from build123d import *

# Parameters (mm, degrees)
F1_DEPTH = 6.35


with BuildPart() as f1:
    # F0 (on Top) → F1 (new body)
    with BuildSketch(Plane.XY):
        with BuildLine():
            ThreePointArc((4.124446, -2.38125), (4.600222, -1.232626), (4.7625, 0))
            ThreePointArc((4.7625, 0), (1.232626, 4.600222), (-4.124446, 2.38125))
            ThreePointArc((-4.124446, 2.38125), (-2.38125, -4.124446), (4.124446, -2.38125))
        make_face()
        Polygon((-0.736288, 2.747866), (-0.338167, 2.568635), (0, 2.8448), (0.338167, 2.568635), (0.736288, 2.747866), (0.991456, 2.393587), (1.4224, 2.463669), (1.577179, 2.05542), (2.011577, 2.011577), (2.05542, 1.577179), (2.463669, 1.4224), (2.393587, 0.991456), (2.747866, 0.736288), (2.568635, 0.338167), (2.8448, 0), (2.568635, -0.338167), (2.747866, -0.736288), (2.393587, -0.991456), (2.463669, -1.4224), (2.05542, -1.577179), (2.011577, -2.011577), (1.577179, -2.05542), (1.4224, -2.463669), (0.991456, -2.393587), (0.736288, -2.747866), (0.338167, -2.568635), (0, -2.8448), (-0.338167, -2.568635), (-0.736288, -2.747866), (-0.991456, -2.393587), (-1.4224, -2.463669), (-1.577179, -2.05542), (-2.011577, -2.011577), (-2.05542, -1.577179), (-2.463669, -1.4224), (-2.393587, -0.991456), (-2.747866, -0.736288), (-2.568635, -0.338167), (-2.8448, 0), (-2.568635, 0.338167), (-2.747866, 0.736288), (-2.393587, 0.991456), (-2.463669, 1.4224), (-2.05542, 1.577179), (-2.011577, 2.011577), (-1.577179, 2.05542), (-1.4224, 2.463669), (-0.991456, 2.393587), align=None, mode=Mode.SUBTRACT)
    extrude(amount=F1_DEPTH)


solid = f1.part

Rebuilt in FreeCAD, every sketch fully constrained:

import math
import FreeCAD as App
import Part
import Sketcher

V = App.Vector
Q = App.Units.Quantity


def add_polygon(sketch, points):
    """Adds a closed chain of lines whose ends are joined by coincident constraints."""
    first, n = sketch.GeometryCount, len(points)
    for a, b in zip(points, points[1:] + points[:1]):
        sketch.addGeometry(Part.LineSegment(App.Vector(*a, 0), App.Vector(*b, 0)), False)
    for i in range(n):
        sketch.addConstraint(Sketcher.Constraint("Coincident", first + i, 2, first + (i + 1) % n, 1))

doc = App.newDocument("Part")
params = doc.addObject("Spreadsheet::Sheet", "Params")
for row, (alias, value) in enumerate([
    ("sketch1_radius", "0.1875 in"),
    ("pad1_length", "0.25 in"),
], start=1):
    params.set(f"A{row}", alias)
    params.set(f"B{row}", "=" + value)
    params.setAlias(f"B{row}", alias)

body = doc.addObject("PartDesign::Body", "Body")

sketch1 = body.newObject("Sketcher::SketchObject", "Sketch")
sketch1.AttachmentSupport = (doc.getObject("XY_Plane"), [""])
sketch1.MapMode = "FlatFace"
sketch1.addGeometry(Part.ArcOfCircle(Part.Circle(V(0.000009, -0.000002, 0), V(0, 0, 1), 4.762491), math.radians(-30.000028), math.radians(0.000029)), False)
sketch1.addGeometry(Part.ArcOfCircle(Part.Circle(V(0, 0, 0), V(0, 0, 1), 4.7625), math.radians(-0.000005), math.radians(150.000005)), False)
sketch1.addGeometry(Part.ArcOfCircle(Part.Circle(V(0, 0, 0), V(0, 0, 1), 4.7625), math.radians(150), math.radians(330)), False)
add_polygon(sketch1, [(-0.991456, 2.393587), (-0.736288, 2.747866), (-0.338167, 2.568635), (0, 2.8448), (0.338167, 2.568635), (0.736288, 2.747866), (0.991456, 2.393587), (1.4224, 2.463669), (1.577179, 2.05542), (2.011577, 2.011577), (2.05542, 1.577179), (2.463669, 1.4224), (2.393587, 0.991456), (2.747866, 0.736288), (2.568635, 0.338167), (2.8448, 0), (2.568635, -0.338167), (2.747866, -0.736288), (2.393587, -0.991456), (2.463669, -1.4224), (2.05542, -1.577179), (2.011577, -2.011577), (1.577179, -2.05542), (1.4224, -2.463669), (0.991456, -2.393587), (0.736288, -2.747866), (0.338167, -2.568635), (0, -2.8448), (-0.338167, -2.568635), (-0.736288, -2.747866), (-0.991456, -2.393587), (-1.4224, -2.463669), (-1.577179, -2.05542), (-2.011577, -2.011577), (-2.05542, -1.577179), (-2.463669, -1.4224), (-2.393587, -0.991456), (-2.747866, -0.736288), (-2.568635, -0.338167), (-2.8448, 0), (-2.568635, 0.338167), (-2.747866, 0.736288), (-2.393587, 0.991456), (-2.463669, 1.4224), (-2.05542, 1.577179), (-2.011577, 2.011577), (-1.577179, 2.05542), (-1.4224, 2.463669)])
sketch1.addConstraint(Sketcher.Constraint("Tangent", 0, 2, 1, 1))
sketch1.addConstraint(Sketcher.Constraint("Tangent", 1, 2, 2, 1))
sketch1.addConstraint(Sketcher.Constraint("Tangent", 2, 2, 0, 1))
sketch1.addConstraint(Sketcher.Constraint("Coincident", 0, 3, -1, 1))
sketch1.addConstraint(Sketcher.Constraint("Symmetric", 3, 2, 27, 2, -1, 1))
sketch1.addConstraint(Sketcher.Constraint("Symmetric", 4, 2, 28, 2, -1, 1))
sketch1.addConstraint(Sketcher.Constraint("Symmetric", 5, 2, 29, 2, -1, 1))
sketch1.addConstraint(Sketcher.Constraint("Symmetric", 6, 2, 30, 2, -1, 1))
sketch1.addConstraint(Sketcher.Constraint("Symmetric", 7, 2, 31, 2, -1, 1))
sketch1.addConstraint(Sketcher.Constraint("Symmetric", 8, 2, 32, 2, -1, 1))
sketch1.addConstraint(Sketcher.Constraint("Symmetric", 9, 2, 33, 2, -1, 1))
sketch1.addConstraint(Sketcher.Constraint("Symmetric", 10, 2, 34, 2, -1, 1))
sketch1.addConstraint(Sketcher.Constraint("Symmetric", 11, 2, 35, 2, -1, 1))
sketch1.addConstraint(Sketcher.Constraint("Symmetric", 12, 2, 36, 2, -1, 1))
sketch1.addConstraint(Sketcher.Constraint("Symmetric", 13, 2, 37, 2, -1, 1))
sketch1.addConstraint(Sketcher.Constraint("Symmetric", 14, 2, 38, 2, -1, 1))
sketch1.addConstraint(Sketcher.Constraint("Symmetric", 15, 2, 39, 2, -1, 1))
sketch1.addConstraint(Sketcher.Constraint("Symmetric", 16, 2, 40, 2, -1, 1))
sketch1.addConstraint(Sketcher.Constraint("Symmetric", 17, 2, 41, 2, -1, 1))
sketch1.addConstraint(Sketcher.Constraint("Symmetric", 18, 2, 42, 2, -1, 1))
sketch1.addConstraint(Sketcher.Constraint("Symmetric", 19, 2, 43, 2, -1, 1))
sketch1.addConstraint(Sketcher.Constraint("Symmetric", 20, 2, 44, 2, -1, 1))
sketch1.addConstraint(Sketcher.Constraint("Symmetric", 21, 2, 45, 2, -1, 1))
sketch1.addConstraint(Sketcher.Constraint("Symmetric", 22, 2, 46, 2, -1, 1))
sketch1.addConstraint(Sketcher.Constraint("Symmetric", 23, 2, 47, 2, -1, 1))
sketch1.addConstraint(Sketcher.Constraint("Symmetric", 24, 2, 48, 2, -1, 1))
sketch1.addConstraint(Sketcher.Constraint("Symmetric", 25, 2, 49, 2, -1, 1))
sketch1.addConstraint(Sketcher.Constraint("Symmetric", 26, 2, 50, 2, -1, 1))
sketch1.addConstraint(Sketcher.Constraint("Symmetric", 4, 2, 6, 2, -2))
sketch1.addConstraint(Sketcher.Constraint("Symmetric", 3, 2, 7, 2, -2))
sketch1.addConstraint(Sketcher.Constraint("Symmetric", 26, 2, 32, 2, -2))
sketch1.addConstraint(Sketcher.Constraint("Symmetric", 25, 2, 33, 2, -2))
sketch1.addConstraint(Sketcher.Constraint("Symmetric", 24, 2, 34, 2, -2))
sketch1.addConstraint(Sketcher.Constraint("Symmetric", 23, 2, 35, 2, -2))
sketch1.addConstraint(Sketcher.Constraint("Symmetric", 22, 2, 36, 2, -2))
sketch1.addConstraint(Sketcher.Constraint("Symmetric", 21, 2, 37, 2, -2))
sketch1.addConstraint(Sketcher.Constraint("Symmetric", 20, 2, 38, 2, -2))
sketch1.addConstraint(Sketcher.Constraint("Symmetric", 19, 2, 39, 2, -2))
sketch1.addConstraint(Sketcher.Constraint("Symmetric", 18, 2, 40, 2, -2))
sketch1.addConstraint(Sketcher.Constraint("PointOnObject", 0, 2, -1))
sketch1.addConstraint(Sketcher.Constraint("PointOnObject", 5, 2, -2))
sketch1.addConstraint(Sketcher.Constraint("PointOnObject", 17, 2, -1))
sketch1.addConstraint(Sketcher.Constraint("Perpendicular", 3, 15))
sketch1.addConstraint(Sketcher.Constraint("Perpendicular", 4, 16))
sketch1.addConstraint(Sketcher.Constraint("Perpendicular", 5, 17))
sketch1.addConstraint(Sketcher.Constraint("Perpendicular", 9, 21))
sketch1.addConstraint(Sketcher.Constraint("Perpendicular", 10, 22))
sketch1.addConstraint(Sketcher.Constraint("Perpendicular", 11, 23))
sketch1.addConstraint(Sketcher.Constraint("Equal", 3, 4))
sketch1.addConstraint(Sketcher.Constraint("Equal", 4, 5))
sketch1.addConstraint(Sketcher.Constraint("Equal", 8, 9))
sketch1.addConstraint(Sketcher.Constraint("Equal", 9, 10))
sketch1.addConstraint(Sketcher.Constraint("Equal", 10, 11))
sketch1.addConstraint(Sketcher.Constraint("Equal", 11, 12))
sketch1.addConstraint(Sketcher.Constraint("Equal", 12, 13))
sketch1.addConstraint(Sketcher.Constraint("Equal", 13, 14))
sketch1.addConstraint(Sketcher.Constraint("Equal", 14, 15))
sketch1.addConstraint(Sketcher.Constraint("Equal", 15, 16))
sketch1.addConstraint(Sketcher.Constraint("Equal", 16, 17))
sketch1.addConstraint(Sketcher.Constraint("Radius", 1, Q("0.1875 in")))
sketch1.addConstraint(Sketcher.Constraint("DistanceY", -1, 1, 1, 2, Q("0.09375 in")))
sketch1.addConstraint(Sketcher.Constraint("DistanceY", 2, 2, -1, 1, Q("0.09375 in")))
sketch1.addConstraint(Sketcher.Constraint("DistanceY", -1, 1, 5, 2, Q("0.112 in")))
sketch1.addConstraint(Sketcher.Constraint("DistanceX", -1, 1, 9, 2, Q("0.056 in")))
sketch1.addConstraint(Sketcher.Constraint("DistanceX", 3, 2, -1, 1, Q("0.736288 mm")))
sketch1.addConstraint(Sketcher.Constraint("DistanceY", -1, 1, 9, 2, Q("2.463669 mm")))
sketch1.addConstraint(Sketcher.Constraint("DistanceX", -1, 1, 10, 2, Q("1.577179 mm")))
sketch1.addConstraint(Sketcher.Constraint("DistanceY", -1, 1, 10, 2, Q("2.05542 mm")))
sketch1.addConstraint(Sketcher.Constraint("DistanceY", 0, 3, 3, 2, Q("2.747868 mm")))
sketch1.setExpression("Constraints[107]", "Params.sketch1_radius")
pad1 = body.newObject("PartDesign::Pad", "Pad")
pad1.Profile = sketch1
pad1.setExpression("Length", "Params.pad1_length")

doc.recompute()
